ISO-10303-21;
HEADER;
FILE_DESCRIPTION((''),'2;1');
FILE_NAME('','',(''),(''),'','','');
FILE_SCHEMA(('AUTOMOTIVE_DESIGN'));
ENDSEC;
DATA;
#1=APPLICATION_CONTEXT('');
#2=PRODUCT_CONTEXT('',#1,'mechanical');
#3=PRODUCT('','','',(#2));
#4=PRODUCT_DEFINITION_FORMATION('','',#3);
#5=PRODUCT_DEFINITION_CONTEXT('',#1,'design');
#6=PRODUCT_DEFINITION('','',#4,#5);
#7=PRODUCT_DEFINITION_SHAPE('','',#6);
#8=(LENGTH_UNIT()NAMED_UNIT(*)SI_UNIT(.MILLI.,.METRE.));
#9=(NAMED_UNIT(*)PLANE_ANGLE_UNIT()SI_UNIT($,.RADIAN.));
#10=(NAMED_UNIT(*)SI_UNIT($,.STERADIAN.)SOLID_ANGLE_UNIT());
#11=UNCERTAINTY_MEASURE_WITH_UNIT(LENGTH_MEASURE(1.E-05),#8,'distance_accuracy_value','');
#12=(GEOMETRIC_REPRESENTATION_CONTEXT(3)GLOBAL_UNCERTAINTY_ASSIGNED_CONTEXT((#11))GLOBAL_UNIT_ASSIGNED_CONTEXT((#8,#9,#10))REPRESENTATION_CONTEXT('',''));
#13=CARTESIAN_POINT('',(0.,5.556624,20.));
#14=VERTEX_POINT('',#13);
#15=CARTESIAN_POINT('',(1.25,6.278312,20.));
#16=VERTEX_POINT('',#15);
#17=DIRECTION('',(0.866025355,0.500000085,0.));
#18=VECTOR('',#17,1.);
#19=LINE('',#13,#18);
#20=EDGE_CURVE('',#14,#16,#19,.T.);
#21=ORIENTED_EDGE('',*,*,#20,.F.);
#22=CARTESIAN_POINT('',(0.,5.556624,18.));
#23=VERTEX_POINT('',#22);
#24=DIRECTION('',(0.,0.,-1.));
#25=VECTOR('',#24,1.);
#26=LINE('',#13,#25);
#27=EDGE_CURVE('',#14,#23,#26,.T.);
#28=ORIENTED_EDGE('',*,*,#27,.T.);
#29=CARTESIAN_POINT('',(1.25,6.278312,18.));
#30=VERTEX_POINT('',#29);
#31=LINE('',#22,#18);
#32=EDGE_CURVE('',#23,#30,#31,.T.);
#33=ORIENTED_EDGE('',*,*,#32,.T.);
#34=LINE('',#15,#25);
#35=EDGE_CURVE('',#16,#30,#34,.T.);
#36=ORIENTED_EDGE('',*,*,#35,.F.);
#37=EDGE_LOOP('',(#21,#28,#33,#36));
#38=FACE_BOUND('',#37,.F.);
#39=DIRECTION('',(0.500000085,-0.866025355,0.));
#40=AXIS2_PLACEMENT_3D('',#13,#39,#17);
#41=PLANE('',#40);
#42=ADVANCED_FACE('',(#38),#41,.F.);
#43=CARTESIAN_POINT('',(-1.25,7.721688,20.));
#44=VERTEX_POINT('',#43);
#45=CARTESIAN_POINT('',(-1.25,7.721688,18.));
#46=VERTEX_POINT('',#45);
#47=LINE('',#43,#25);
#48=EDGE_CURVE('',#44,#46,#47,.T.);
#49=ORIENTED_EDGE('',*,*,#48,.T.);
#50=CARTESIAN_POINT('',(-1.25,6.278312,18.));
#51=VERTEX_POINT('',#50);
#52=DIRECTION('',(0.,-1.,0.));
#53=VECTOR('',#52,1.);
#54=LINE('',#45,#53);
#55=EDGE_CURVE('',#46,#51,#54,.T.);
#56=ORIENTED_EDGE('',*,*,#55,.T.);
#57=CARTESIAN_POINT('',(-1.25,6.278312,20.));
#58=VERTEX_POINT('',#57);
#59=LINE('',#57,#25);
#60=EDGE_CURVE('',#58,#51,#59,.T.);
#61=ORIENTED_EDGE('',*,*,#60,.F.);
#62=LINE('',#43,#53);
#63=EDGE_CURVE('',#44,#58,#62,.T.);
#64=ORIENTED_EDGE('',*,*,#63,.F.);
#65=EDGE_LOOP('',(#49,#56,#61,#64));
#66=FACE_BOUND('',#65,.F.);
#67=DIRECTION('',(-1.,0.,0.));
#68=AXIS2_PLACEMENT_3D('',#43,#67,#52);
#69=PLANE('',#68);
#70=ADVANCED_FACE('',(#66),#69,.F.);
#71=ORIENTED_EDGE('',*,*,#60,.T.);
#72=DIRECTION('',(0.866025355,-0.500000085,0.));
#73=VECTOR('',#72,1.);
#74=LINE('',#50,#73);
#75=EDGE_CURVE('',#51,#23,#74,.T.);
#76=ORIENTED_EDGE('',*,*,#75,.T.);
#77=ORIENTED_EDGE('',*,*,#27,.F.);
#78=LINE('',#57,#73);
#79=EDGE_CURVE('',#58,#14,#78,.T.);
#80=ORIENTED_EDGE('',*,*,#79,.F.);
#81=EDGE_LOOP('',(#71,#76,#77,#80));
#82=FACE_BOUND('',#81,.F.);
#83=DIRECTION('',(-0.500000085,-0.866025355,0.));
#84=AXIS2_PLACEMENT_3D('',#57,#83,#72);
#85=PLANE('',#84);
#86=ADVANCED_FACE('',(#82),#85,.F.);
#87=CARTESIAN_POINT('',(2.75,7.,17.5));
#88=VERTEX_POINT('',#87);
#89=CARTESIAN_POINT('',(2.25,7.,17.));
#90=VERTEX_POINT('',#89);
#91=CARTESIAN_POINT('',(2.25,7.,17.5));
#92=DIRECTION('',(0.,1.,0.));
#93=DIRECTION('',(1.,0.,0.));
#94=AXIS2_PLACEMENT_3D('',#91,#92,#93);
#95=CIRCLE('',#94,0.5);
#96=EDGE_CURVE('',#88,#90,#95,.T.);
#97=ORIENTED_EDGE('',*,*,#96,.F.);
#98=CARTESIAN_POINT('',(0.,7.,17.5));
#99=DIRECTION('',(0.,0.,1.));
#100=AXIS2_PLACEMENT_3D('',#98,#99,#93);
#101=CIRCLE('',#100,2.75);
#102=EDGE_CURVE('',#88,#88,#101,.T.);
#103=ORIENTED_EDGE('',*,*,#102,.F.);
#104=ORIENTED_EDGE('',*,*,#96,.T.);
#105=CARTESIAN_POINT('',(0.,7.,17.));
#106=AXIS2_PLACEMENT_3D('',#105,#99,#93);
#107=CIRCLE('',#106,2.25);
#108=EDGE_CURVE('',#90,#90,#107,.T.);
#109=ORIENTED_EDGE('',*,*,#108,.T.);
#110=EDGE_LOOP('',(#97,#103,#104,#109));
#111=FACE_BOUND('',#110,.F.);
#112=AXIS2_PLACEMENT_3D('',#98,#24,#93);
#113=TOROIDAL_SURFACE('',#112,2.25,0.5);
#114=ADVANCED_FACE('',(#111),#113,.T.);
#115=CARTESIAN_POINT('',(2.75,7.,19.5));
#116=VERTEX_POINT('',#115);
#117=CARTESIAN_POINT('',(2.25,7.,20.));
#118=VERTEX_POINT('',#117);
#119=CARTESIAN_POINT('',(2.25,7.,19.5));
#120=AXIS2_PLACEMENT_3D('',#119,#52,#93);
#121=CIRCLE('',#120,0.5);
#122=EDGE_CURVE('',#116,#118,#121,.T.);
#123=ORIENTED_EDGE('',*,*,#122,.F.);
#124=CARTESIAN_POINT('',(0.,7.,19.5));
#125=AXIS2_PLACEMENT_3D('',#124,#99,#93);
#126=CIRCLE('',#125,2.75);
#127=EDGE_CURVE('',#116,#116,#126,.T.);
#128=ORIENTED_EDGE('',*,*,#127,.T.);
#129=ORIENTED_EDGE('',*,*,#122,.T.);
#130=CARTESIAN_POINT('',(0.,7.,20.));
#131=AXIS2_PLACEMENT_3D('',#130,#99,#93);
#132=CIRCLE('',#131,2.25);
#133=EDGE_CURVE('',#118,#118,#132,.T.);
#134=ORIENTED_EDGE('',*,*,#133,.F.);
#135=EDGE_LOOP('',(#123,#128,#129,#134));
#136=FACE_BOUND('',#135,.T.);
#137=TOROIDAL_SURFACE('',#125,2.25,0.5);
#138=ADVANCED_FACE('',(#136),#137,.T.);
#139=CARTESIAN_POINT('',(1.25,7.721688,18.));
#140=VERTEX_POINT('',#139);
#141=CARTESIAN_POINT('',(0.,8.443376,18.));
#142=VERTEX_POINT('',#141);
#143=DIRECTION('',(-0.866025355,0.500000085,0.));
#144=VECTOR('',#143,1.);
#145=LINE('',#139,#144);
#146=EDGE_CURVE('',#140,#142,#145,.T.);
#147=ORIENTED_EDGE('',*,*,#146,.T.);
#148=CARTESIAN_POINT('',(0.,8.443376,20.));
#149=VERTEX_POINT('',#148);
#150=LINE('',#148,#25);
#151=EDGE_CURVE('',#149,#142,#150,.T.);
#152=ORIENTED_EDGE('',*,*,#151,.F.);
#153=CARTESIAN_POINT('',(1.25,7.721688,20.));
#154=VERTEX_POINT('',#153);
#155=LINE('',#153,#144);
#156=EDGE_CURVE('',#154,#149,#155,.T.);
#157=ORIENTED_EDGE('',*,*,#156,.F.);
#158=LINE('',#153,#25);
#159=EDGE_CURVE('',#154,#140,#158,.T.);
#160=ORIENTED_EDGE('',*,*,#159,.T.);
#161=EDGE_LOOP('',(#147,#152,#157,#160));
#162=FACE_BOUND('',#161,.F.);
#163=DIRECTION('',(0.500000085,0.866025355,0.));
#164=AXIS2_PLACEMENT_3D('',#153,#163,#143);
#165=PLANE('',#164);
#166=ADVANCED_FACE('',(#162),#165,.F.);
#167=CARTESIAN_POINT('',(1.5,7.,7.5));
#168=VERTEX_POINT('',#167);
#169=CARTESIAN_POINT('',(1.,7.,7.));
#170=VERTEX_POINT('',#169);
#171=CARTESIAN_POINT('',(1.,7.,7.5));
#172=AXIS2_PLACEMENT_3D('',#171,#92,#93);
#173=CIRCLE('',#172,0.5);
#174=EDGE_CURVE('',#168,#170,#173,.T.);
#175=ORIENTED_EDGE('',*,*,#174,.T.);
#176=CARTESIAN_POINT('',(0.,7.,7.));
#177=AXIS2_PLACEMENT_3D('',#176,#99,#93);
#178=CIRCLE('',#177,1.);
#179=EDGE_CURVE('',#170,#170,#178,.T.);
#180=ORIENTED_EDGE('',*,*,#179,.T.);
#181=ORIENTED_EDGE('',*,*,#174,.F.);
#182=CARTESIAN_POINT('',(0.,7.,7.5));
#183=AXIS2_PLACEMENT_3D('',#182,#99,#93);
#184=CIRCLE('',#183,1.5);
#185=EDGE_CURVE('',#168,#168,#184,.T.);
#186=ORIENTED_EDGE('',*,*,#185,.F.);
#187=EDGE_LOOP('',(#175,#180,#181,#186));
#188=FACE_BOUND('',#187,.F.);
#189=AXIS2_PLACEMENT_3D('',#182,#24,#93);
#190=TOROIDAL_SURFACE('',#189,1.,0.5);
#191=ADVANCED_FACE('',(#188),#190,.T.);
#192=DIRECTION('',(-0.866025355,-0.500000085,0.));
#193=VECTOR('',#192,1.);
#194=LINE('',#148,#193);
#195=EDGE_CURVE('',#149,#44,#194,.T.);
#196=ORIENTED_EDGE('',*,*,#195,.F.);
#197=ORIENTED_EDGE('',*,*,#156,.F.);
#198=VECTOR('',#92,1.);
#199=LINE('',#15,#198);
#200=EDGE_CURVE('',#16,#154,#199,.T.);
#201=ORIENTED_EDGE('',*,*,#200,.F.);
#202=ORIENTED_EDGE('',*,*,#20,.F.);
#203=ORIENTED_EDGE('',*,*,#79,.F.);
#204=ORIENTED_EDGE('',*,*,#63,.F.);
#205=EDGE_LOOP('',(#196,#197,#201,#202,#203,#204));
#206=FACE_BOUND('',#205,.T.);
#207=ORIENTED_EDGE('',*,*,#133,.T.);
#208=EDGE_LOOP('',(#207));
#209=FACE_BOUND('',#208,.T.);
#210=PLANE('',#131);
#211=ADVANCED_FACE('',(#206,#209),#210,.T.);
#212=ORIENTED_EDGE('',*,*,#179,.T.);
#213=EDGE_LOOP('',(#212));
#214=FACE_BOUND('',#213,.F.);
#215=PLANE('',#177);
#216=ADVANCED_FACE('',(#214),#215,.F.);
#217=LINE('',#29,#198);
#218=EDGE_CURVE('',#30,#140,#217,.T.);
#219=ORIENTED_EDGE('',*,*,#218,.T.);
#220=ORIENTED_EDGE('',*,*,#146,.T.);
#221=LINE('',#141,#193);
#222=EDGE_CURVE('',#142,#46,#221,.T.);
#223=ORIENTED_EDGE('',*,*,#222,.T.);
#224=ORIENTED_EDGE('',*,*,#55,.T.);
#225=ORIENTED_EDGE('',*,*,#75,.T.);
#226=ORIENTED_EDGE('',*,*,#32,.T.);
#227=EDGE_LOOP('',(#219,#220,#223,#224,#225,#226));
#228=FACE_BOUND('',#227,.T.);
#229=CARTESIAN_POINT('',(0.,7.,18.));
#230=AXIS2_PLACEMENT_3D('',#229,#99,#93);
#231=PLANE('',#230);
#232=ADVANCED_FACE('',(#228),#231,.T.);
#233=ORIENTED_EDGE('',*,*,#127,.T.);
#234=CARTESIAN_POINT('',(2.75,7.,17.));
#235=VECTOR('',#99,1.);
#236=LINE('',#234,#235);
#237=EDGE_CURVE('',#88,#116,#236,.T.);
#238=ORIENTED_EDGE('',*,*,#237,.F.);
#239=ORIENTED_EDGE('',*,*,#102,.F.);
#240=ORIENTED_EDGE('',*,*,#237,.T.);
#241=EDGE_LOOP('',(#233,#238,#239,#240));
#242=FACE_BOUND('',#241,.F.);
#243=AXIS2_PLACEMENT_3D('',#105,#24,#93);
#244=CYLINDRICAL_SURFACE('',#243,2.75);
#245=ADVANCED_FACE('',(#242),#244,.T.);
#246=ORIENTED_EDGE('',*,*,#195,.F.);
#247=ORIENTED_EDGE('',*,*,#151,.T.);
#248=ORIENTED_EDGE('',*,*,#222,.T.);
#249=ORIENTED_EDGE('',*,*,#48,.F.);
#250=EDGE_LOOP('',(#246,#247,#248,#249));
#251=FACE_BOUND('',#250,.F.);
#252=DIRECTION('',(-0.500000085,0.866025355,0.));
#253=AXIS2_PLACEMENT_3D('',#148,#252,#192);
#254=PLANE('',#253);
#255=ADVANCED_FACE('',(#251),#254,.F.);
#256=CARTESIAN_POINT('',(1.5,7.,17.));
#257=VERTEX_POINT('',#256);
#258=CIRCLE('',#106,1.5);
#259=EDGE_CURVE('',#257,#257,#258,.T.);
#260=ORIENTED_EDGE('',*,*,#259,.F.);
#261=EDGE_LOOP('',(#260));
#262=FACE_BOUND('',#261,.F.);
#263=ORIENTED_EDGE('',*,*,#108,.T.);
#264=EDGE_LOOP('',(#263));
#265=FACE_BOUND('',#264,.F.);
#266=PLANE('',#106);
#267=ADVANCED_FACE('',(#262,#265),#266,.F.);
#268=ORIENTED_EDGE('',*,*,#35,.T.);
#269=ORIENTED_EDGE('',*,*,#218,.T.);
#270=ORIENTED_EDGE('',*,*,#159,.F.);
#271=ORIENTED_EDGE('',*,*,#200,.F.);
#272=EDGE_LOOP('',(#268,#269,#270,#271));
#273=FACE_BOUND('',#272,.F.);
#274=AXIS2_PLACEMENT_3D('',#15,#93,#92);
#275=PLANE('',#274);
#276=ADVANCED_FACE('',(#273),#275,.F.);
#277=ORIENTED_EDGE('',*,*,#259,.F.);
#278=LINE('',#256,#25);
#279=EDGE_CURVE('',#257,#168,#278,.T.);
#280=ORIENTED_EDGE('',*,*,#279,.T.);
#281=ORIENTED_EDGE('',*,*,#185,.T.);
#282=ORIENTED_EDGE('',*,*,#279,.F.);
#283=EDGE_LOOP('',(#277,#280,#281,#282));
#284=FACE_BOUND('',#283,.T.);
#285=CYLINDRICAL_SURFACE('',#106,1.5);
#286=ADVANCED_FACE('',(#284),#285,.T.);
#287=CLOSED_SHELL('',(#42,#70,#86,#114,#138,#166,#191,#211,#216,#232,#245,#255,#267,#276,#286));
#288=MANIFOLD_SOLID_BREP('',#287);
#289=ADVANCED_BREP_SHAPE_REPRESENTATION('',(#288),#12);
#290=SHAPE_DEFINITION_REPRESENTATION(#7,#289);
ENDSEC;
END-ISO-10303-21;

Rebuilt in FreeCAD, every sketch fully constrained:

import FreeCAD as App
import Part
import Sketcher
Q = App.Units.Quantity


def edges_at(feature, points):
    """Names of the edges that pass closest to the given points."""
    edges = feature.Shape.Edges
    near = lambda p: min(range(len(edges)), key=lambda i: edges[i].distToShape(Part.Vertex(*p))[0])
    return sorted({f"Edge{near(p) + 1}" for p in points})


def add_polygon(sketch, points):
    """Adds a closed chain of lines whose ends are joined by coincident constraints."""
    first, n = sketch.GeometryCount, len(points)
    for a, b in zip(points, points[1:] + points[:1]):
        sketch.addGeometry(Part.LineSegment(App.Vector(*a, 0), App.Vector(*b, 0)), False)
    for i in range(n):
        sketch.addConstraint(Sketcher.Constraint("Coincident", first + i, 2, first + (i + 1) % n, 1))

doc = App.newDocument("Part")
body = doc.addObject("PartDesign::Body", "Body")

# Sketch on XY plane
sketch1 = body.newObject("Sketcher::SketchObject", "Sketch")
sketch1.AttachmentSupport = (doc.getObject("XY_Plane"), [""])
sketch1.MapMode = "FlatFace"
sketch1.addGeometry(Part.Circle(App.Vector(0, 0, 0), App.Vector(0, 0, 1), 2.8), False)
sketch1.addConstraint(Sketcher.Constraint("Coincident", 0, 3, -1, 1))
sketch1.addConstraint(Sketcher.Constraint("Diameter", 0, 5.5))
pad1 = body.newObject("PartDesign::Pad", "Pad")
pad1.Profile = sketch1
pad1.Length = 3

# Sketch on XY plane
sketch2 = body.newObject("Sketcher::SketchObject", "Sketch001")
sketch2.AttachmentSupport = (doc.getObject("XY_Plane"), [""])
sketch2.MapMode = "FlatFace"
sketch2.AttachmentOffset = App.Placement(App.Vector(0, 0, 3), App.Rotation())
add_polygon(sketch2, [(1.2, -0.7), (1.2, 0.7), (0, 1.4), (-1.2, 0.7), (-1.2, -0.7), (0, -1.4)])  # lines 0-5
sketch2.addConstraint(Sketcher.Constraint("Vertical", 0))
sketch2.addConstraint(Sketcher.Constraint("Vertical", 3))
sketch2.addConstraint(Sketcher.Constraint("Symmetric", 0, 2, 3, 2, -1, 1))
sketch2.addConstraint(Sketcher.Constraint("Symmetric", 1, 2, 4, 2, -1, 1))
sketch2.addConstraint(Sketcher.Constraint("PointOnObject", 1, 2, -2))
sketch2.addConstraint(Sketcher.Constraint("Parallel", 2, 5))
sketch2.addConstraint(Sketcher.Constraint("Horizontal", 0, 2, 2, 2))
sketch2.addConstraint(Sketcher.Constraint("Angle", 1, Q("149.999994 deg")))
sketch2.addConstraint(Sketcher.Constraint("DistanceX", 2, 2, 0, 2, 2.5))
sketch2.addConstraint(Sketcher.Constraint("DistanceY", 0, 1, 0, 2, 1.443376))
pocket1 = body.newObject("PartDesign::Pocket", "Pocket")
pocket1.Profile = sketch2
pocket1.Length = 2

# Sketch on XY plane
sketch3 = body.newObject("Sketcher::SketchObject", "Sketch002")
sketch3.AttachmentSupport = (doc.getObject("XY_Plane"), [""])
sketch3.MapMode = "FlatFace"
sketch3.addGeometry(Part.Circle(App.Vector(0, 0, 0), App.Vector(0, 0, 1), 1.5), False)
sketch3.addConstraint(Sketcher.Constraint("Coincident", 0, 3, -1, 1))
sketch3.addConstraint(Sketcher.Constraint("Diameter", 0, 3.0))
pad2 = body.newObject("PartDesign::Pad", "Pad001")
pad2.Profile = sketch3
pad2.Length = 10
pad2.Reversed = True
doc.recompute()

fillet = body.newObject("PartDesign::Fillet", "Fillet")
fillet.Base = (pad2, edges_at(pad2, [(-2.75, 0, 3), (-2.75, 0, 0), (-1.5, 0, -10)]))
fillet.Radius = 0.5
body2 = doc.addObject("PartDesign::Body", "Body001")
doc.recompute()

body.Placement = App.Placement(App.Vector(0, -7, 17), App.Rotation(App.Vector(0, 0, 1), 0))
boolean = body2.newObject("PartDesign::Boolean", "Boolean")
boolean.Type = "Fuse"
boolean.addObjects([body])
body3 = doc.addObject("PartDesign::Body", "Body002")
doc.recompute()

body2.Placement = App.Placement(App.Vector(0, 14, 0), App.Rotation(App.Vector(0, 0, 1), 0))
boolean2 = body3.newObject("PartDesign::Boolean", "Boolean001")
boolean2.Type = "Fuse"
boolean2.addObjects([body2])

doc.recompute()
